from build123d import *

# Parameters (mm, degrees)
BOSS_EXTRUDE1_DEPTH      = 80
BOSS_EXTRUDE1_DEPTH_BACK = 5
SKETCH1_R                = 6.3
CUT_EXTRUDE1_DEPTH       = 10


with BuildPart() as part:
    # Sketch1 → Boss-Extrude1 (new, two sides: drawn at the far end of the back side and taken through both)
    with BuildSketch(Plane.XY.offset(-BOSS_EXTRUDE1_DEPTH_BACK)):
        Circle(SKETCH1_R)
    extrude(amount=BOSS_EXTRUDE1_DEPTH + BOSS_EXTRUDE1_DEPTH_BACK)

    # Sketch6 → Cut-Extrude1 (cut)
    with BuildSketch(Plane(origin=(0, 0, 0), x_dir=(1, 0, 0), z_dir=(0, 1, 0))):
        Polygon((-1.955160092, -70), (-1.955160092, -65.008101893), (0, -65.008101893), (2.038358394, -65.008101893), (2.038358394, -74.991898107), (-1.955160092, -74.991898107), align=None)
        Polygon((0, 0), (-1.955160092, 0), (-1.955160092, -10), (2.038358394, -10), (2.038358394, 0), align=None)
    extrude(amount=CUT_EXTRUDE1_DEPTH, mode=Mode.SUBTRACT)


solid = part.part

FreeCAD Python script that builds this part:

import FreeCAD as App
import Part
import Sketcher
from FreeCAD import Vector
Q = App.Units.Quantity

doc = App.newDocument("Part")
body = doc.addObject("PartDesign::Body", "Body")

sketch1 = body.newObject("Sketcher::SketchObject", "Sketch")
sketch1.AttachmentSupport = (doc.getObject("XY_Plane"), [""])
sketch1.MapMode = "FlatFace"
sketch1.addGeometry(Part.Circle(Vector(0, 0, 0), Vector(0, 0, 1), 6), False)
sketch1.addConstraint(Sketcher.Constraint("Coincident", 0, 3, -1, 1))
sketch1.addConstraint(Sketcher.Constraint("Diameter", 0, Q("12.6 mm")))
pad1 = body.newObject("PartDesign::Pad", "Pad")
pad1.Profile = sketch1
pad1.Type = "TwoLengths"
pad1.Length = 80
pad1.Length2 = 5

sketch2 = body.newObject("Sketcher::SketchObject", "Sketch001")
sketch2.AttachmentSupport = (doc.getObject("XZ_Plane"), [""])
sketch2.MapMode = "FlatFace"
sketch2.addGeometry(Part.LineSegment(Vector(-2, 65, 0), Vector(-2, 75, 0)), False)
sketch2.addGeometry(Part.LineSegment(Vector(-2, 75, 0), Vector(2, 75, 0)), False)
sketch2.addGeometry(Part.LineSegment(Vector(2, 75, 0), Vector(2, 65, 0)), False)
sketch2.addGeometry(Part.LineSegment(Vector(2, 65, 0), Vector(-2, 65, 0)), False)
sketch2.addGeometry(Part.LineSegment(Vector(-2, 0, 0), Vector(-2, 10, 0)), False)
sketch2.addGeometry(Part.LineSegment(Vector(-2, 10, 0), Vector(2, 10, 0)), False)
sketch2.addGeometry(Part.LineSegment(Vector(2, 10, 0), Vector(2, 0, 0)), False)
sketch2.addGeometry(Part.LineSegment(Vector(2, 0, 0), Vector(-2, 0, 0)), False)
sketch2.addConstraint(Sketcher.Constraint("Coincident", 0, 2, 1, 1))
sketch2.addConstraint(Sketcher.Constraint("Coincident", 1, 2, 2, 1))
sketch2.addConstraint(Sketcher.Constraint("Coincident", 2, 2, 3, 1))
sketch2.addConstraint(Sketcher.Constraint("Coincident", 3, 2, 0, 1))
sketch2.addConstraint(Sketcher.Constraint("Coincident", 4, 2, 5, 1))
sketch2.addConstraint(Sketcher.Constraint("Coincident", 5, 2, 6, 1))
sketch2.addConstraint(Sketcher.Constraint("Coincident", 6, 2, 7, 1))
sketch2.addConstraint(Sketcher.Constraint("Coincident", 7, 2, 4, 1))
sketch2.addConstraint(Sketcher.Constraint("Vertical", 0))
sketch2.addConstraint(Sketcher.Constraint("Horizontal", 1))
sketch2.addConstraint(Sketcher.Constraint("Vertical", 2))
sketch2.addConstraint(Sketcher.Constraint("Horizontal", 3))
sketch2.addConstraint(Sketcher.Constraint("Vertical", 4))
sketch2.addConstraint(Sketcher.Constraint("Horizontal", 5))
sketch2.addConstraint(Sketcher.Constraint("Vertical", 6))
sketch2.addConstraint(Sketcher.Constraint("Horizontal", 7))
sketch2.addConstraint(Sketcher.Constraint("PointOnObject", 6, 2, -1))
sketch2.addConstraint(Sketcher.Constraint("Vertical", 3, 2, 4, 2))
sketch2.addConstraint(Sketcher.Constraint("Vertical", 2, 2, 5, 2))
sketch2.addConstraint(Sketcher.Constraint("DistanceY", 4, 1, 4, 2, Q("10 mm")))
sketch2.addConstraint(Sketcher.Constraint("DistanceX", 1, 1, 1, 2, Q("3.993518 mm")))
sketch2.addConstraint(Sketcher.Constraint("DistanceY", -1, 1, 0, 2, Q("74.991898 mm")))
sketch2.addConstraint(Sketcher.Constraint("DistanceY", -1, 1, 2, 2, Q("65.008102 mm")))
sketch2.addConstraint(Sketcher.Constraint("DistanceX", 0, 2, -1, 1, Q("1.95516 mm")))
pocket1 = body.newObject("PartDesign::Pocket", "Pocket")
pocket1.Profile = sketch2
pocket1.Length = 10

doc.recompute()
